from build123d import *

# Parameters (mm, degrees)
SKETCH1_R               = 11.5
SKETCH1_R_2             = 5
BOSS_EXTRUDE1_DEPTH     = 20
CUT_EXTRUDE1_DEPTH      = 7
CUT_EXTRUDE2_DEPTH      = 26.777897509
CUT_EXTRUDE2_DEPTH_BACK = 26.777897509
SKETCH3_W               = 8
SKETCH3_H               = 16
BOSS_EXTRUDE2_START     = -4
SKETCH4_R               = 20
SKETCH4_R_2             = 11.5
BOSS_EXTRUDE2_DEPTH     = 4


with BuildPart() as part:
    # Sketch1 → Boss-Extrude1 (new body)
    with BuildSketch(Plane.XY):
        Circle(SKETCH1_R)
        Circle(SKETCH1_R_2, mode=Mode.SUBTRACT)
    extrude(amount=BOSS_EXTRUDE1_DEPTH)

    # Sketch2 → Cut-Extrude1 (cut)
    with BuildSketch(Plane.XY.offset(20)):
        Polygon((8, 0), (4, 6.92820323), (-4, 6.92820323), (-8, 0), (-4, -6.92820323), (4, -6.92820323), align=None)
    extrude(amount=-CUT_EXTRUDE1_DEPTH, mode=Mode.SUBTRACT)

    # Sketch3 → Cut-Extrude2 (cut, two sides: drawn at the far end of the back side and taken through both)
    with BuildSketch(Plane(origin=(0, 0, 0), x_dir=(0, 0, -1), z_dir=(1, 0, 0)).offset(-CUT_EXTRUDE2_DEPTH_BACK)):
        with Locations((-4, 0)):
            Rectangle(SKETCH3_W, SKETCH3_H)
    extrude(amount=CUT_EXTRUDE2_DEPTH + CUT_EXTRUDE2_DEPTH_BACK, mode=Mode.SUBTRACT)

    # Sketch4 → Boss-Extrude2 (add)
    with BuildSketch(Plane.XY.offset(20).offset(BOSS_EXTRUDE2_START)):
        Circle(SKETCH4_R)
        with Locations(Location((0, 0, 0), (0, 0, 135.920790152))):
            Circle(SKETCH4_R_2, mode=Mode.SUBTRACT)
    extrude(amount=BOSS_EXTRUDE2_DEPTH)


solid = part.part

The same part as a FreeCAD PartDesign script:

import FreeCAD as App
import Part
import Sketcher

V = App.Vector
Q = App.Units.Quantity

doc = App.newDocument("Part")
body = doc.addObject("PartDesign::Body", "Body")

# Sketch on XY plane
sketch1 = body.newObject("Sketcher::SketchObject", "Sketch")
sketch1.AttachmentSupport = (doc.getObject("XY_Plane"), [""])
sketch1.MapMode = "FlatFace"
sketch1.addGeometry(Part.Circle(V(0, 0, 0), V(0, 0, 1), 12), False)
sketch1.addGeometry(Part.Circle(V(0, 0, 0), V(0, 0, 1), 5), False)
sketch1.addConstraint(Sketcher.Constraint("Coincident", 0, 3, -1, 1))
sketch1.addConstraint(Sketcher.Constraint("Coincident", 1, 3, -1, 1))
sketch1.addConstraint(Sketcher.Constraint("Diameter", 0, 23.0))
sketch1.addConstraint(Sketcher.Constraint("Diameter", 1, 10.0))
pad1 = body.newObject("PartDesign::Pad", "Pad")
pad1.Profile = sketch1
pad1.Length = 20

# Sketch on XY plane
sketch2 = body.newObject("Sketcher::SketchObject", "Sketch001")
sketch2.AttachmentSupport = (doc.getObject("XY_Plane"), [""])
sketch2.MapMode = "FlatFace"
sketch2.AttachmentOffset = App.Placement(V(0, 0, 20), App.Rotation())
sketch2.addGeometry(Part.LineSegment(V(8, 0, 0), V(4, 7, 0)), False)
sketch2.addGeometry(Part.LineSegment(V(4, 7, 0), V(-4, 7, 0)), False)
sketch2.addGeometry(Part.LineSegment(V(-4, 7, 0), V(-8, 0, 0)), False)
sketch2.addGeometry(Part.LineSegment(V(-8, 0, 0), V(-4, -7, 0)), False)
sketch2.addGeometry(Part.LineSegment(V(-4, -7, 0), V(4, -7, 0)), False)
sketch2.addGeometry(Part.LineSegment(V(4, -7, 0), V(8, 0, 0)), False)
sketch2.addConstraint(Sketcher.Constraint("Coincident", 0, 2, 1, 1))
sketch2.addConstraint(Sketcher.Constraint("Coincident", 1, 2, 2, 1))
sketch2.addConstraint(Sketcher.Constraint("Coincident", 2, 2, 3, 1))
sketch2.addConstraint(Sketcher.Constraint("Coincident", 3, 2, 4, 1))
sketch2.addConstraint(Sketcher.Constraint("Coincident", 4, 2, 5, 1))
sketch2.addConstraint(Sketcher.Constraint("Coincident", 5, 2, 0, 1))
sketch2.addConstraint(Sketcher.Constraint("Horizontal", 1))
sketch2.addConstraint(Sketcher.Constraint("Horizontal", 4))
sketch2.addConstraint(Sketcher.Constraint("Symmetric", 0, 2, 3, 2, -1, 1))
sketch2.addConstraint(Sketcher.Constraint("Symmetric", 2, 2, 5, 2, -1, 1))
sketch2.addConstraint(Sketcher.Constraint("PointOnObject", 2, 2, -1))
sketch2.addConstraint(Sketcher.Constraint("Parallel", 2, 5))
sketch2.addConstraint(Sketcher.Constraint("Vertical", 1, 2, 3, 2))
sketch2.addConstraint(Sketcher.Constraint("DistanceX", 1, 2, 1, 1, 8.0))
sketch2.addConstraint(Sketcher.Constraint("Angle", 0, Q("120 deg")))
sketch2.addConstraint(Sketcher.Constraint("Distance", 0, 8.0))
pocket1 = body.newObject("PartDesign::Pocket", "Pocket")
pocket1.Profile = sketch2
pocket1.Length = 7

# Sketch on YZ plane
sketch3 = body.newObject("Sketcher::SketchObject", "Sketch002")
sketch3.AttachmentSupport = (doc.getObject("YZ_Plane"), [""])
sketch3.MapMode = "FlatFace"
sketch3.addGeometry(Part.LineSegment(V(8, 8, 0), V(-8, 8, 0)), False)
sketch3.addGeometry(Part.LineSegment(V(-8, 8, 0), V(-8, 0, 0)), False)
sketch3.addGeometry(Part.LineSegment(V(-8, 0, 0), V(8, 0, 0)), False)
sketch3.addGeometry(Part.LineSegment(V(8, 0, 0), V(8, 8, 0)), False)
sketch3.addConstraint(Sketcher.Constraint("Coincident", 0, 2, 1, 1))
sketch3.addConstraint(Sketcher.Constraint("Coincident", 1, 2, 2, 1))
sketch3.addConstraint(Sketcher.Constraint("Coincident", 2, 2, 3, 1))
sketch3.addConstraint(Sketcher.Constraint("Coincident", 3, 2, 0, 1))
sketch3.addConstraint(Sketcher.Constraint("Horizontal", 0))
sketch3.addConstraint(Sketcher.Constraint("Vertical", 1))
sketch3.addConstraint(Sketcher.Constraint("Horizontal", 2))
sketch3.addConstraint(Sketcher.Constraint("Vertical", 3))
sketch3.addConstraint(Sketcher.Constraint("Symmetric", 1, 2, 2, 2, -1, 1))
sketch3.addConstraint(Sketcher.Constraint("DistanceX", 0, 2, 0, 1, 16.0))
sketch3.addConstraint(Sketcher.Constraint("DistanceY", 1, 2, 1, 1, 8.0))
pocket2 = body.newObject("PartDesign::Pocket", "Pocket001")
pocket2.Profile = sketch3
pocket2.Type = "ThroughAll"
pocket2.Midplane = True

# Sketch on XY plane
sketch4 = body.newObject("Sketcher::SketchObject", "Sketch003")
sketch4.AttachmentSupport = (doc.getObject("XY_Plane"), [""])
sketch4.MapMode = "FlatFace"
sketch4.AttachmentOffset = App.Placement(V(0, 0, 16), App.Rotation())
sketch4.addGeometry(Part.Circle(V(0, 0, 0), V(0, 0, 1), 20), False)
sketch4.addGeometry(Part.Circle(V(0, 0, 0), V(0, 0, 1), 12), False)
sketch4.addConstraint(Sketcher.Constraint("Coincident", 0, 3, -1, 1))
sketch4.addConstraint(Sketcher.Constraint("Coincident", 1, 3, -1, 1))
sketch4.addConstraint(Sketcher.Constraint("Diameter", 0, 40.0))
sketch4.addConstraint(Sketcher.Constraint("Diameter", 1, 23.0))
pad2 = body.newObject("PartDesign::Pad", "Pad001")
pad2.Profile = sketch4
pad2.Length = 4

doc.recompute()
